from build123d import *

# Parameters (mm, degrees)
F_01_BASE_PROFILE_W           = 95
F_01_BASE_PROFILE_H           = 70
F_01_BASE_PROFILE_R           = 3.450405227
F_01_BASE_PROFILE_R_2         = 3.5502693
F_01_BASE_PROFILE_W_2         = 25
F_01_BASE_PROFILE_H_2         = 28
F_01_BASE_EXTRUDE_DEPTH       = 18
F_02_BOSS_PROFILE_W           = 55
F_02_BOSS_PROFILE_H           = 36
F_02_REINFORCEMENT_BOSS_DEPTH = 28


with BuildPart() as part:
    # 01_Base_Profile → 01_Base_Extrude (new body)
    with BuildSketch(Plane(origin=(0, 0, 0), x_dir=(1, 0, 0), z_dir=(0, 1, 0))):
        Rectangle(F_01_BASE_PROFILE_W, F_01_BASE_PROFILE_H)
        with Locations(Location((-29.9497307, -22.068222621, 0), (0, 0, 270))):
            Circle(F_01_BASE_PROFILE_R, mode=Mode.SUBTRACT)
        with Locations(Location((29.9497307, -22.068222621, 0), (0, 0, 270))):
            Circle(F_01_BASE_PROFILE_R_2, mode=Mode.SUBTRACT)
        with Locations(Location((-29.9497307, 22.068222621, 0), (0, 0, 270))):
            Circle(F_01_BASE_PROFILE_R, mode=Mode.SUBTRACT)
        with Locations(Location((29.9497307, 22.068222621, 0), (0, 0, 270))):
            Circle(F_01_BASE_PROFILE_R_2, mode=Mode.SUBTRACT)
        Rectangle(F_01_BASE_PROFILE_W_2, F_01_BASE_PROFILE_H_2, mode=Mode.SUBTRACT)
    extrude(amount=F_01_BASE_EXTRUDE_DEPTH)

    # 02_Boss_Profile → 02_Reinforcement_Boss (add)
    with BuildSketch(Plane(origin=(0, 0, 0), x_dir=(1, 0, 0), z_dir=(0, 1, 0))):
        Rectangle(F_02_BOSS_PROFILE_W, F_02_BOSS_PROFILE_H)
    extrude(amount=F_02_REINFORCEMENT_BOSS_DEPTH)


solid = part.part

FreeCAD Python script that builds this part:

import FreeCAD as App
import Part
import Sketcher


def add_polygon(sketch, points):
    """Adds a closed chain of lines whose ends are joined by coincident constraints."""
    first, n = sketch.GeometryCount, len(points)
    for a, b in zip(points, points[1:] + points[:1]):
        sketch.addGeometry(Part.LineSegment(App.Vector(*a, 0), App.Vector(*b, 0)), False)
    for i in range(n):
        sketch.addConstraint(Sketcher.Constraint("Coincident", first + i, 2, first + (i + 1) % n, 1))

doc = App.newDocument("Part")
body = doc.addObject("PartDesign::Body", "Body")

sketch1 = body.newObject("Sketcher::SketchObject", "Sketch")
sketch1.AttachmentSupport = (doc.getObject("XZ_Plane"), [""])
sketch1.MapMode = "FlatFace"
add_polygon(sketch1, [(-47.5, -35), (-47.5, 35), (47.5, 35), (47.5, -35)])
sketch1.addGeometry(Part.Circle(App.Vector(-29.9, 22.1, 0), App.Vector(0, 0, 1), 3.5), False)
sketch1.addGeometry(Part.Circle(App.Vector(29.9, 22.1, 0), App.Vector(0, 0, 1), 3.6), False)
add_polygon(sketch1, [(12.5, 14), (-12.5, 14), (-12.5, -14), (12.5, -14)])
sketch1.addGeometry(Part.Circle(App.Vector(-29.9, -22.1, 0), App.Vector(0, 0, 1), 3.5), False)
sketch1.addGeometry(Part.Circle(App.Vector(29.9, -22.1, 0), App.Vector(0, 0, 1), 3.6), False)
sketch1.addConstraint(Sketcher.Constraint("Vertical", 0))
sketch1.addConstraint(Sketcher.Constraint("Horizontal", 1))
sketch1.addConstraint(Sketcher.Constraint("Vertical", 2))
sketch1.addConstraint(Sketcher.Constraint("Horizontal", 3))
sketch1.addConstraint(Sketcher.Constraint("Horizontal", 6))
sketch1.addConstraint(Sketcher.Constraint("Vertical", 7))
sketch1.addConstraint(Sketcher.Constraint("Horizontal", 8))
sketch1.addConstraint(Sketcher.Constraint("Vertical", 9))
sketch1.addConstraint(Sketcher.Constraint("Equal", 4, 10))
sketch1.addConstraint(Sketcher.Constraint("Equal", 5, 11))
sketch1.addConstraint(Sketcher.Constraint("Symmetric", 5, 3, 10, 3, -1, 1))
sketch1.addConstraint(Sketcher.Constraint("Symmetric", 4, 3, 11, 3, -1, 1))
sketch1.addConstraint(Sketcher.Constraint("Symmetric", 0, 2, 2, 2, -1, 1))
sketch1.addConstraint(Sketcher.Constraint("Symmetric", 6, 2, 8, 2, -1, 1))
sketch1.addConstraint(Sketcher.Constraint("Symmetric", 4, 3, 5, 3, -2))
sketch1.addConstraint(Sketcher.Constraint("DistanceX", 1, 1, 1, 2, 95.0))
sketch1.addConstraint(Sketcher.Constraint("DistanceX", 6, 2, 6, 1, 25.0))
sketch1.addConstraint(Sketcher.Constraint("DistanceY", 0, 1, 0, 2, 70.0))
sketch1.addConstraint(Sketcher.Constraint("DistanceY", 7, 2, 7, 1, 28.0))
sketch1.addConstraint(Sketcher.Constraint("Diameter", 4, 6.90081))
sketch1.addConstraint(Sketcher.Constraint("Diameter", 5, 7.100539))
sketch1.addConstraint(Sketcher.Constraint("DistanceX", 4, 3, -1, 1, 29.949731))
sketch1.addConstraint(Sketcher.Constraint("DistanceY", -1, 1, 4, 3, 22.068223))
pad1 = body.newObject("PartDesign::Pad", "Pad")
pad1.Profile = sketch1
pad1.Length = 18
pad1.Reversed = True

sketch2 = body.newObject("Sketcher::SketchObject", "Sketch001")
sketch2.AttachmentSupport = (doc.getObject("XZ_Plane"), [""])
sketch2.MapMode = "FlatFace"
add_polygon(sketch2, [(-28, -18), (-28, 18), (28, 18), (28, -18)])
sketch2.addConstraint(Sketcher.Constraint("Vertical", 0))
sketch2.addConstraint(Sketcher.Constraint("Horizontal", 1))
sketch2.addConstraint(Sketcher.Constraint("Vertical", 2))
sketch2.addConstraint(Sketcher.Constraint("Horizontal", 3))
sketch2.addConstraint(Sketcher.Constraint("Symmetric", 0, 2, 2, 2, -1, 1))
sketch2.addConstraint(Sketcher.Constraint("DistanceX", 1, 1, 1, 2, 55.0))
sketch2.addConstraint(Sketcher.Constraint("DistanceY", 0, 1, 0, 2, 36.0))
pad2 = body.newObject("PartDesign::Pad", "Pad001")
pad2.Profile = sketch2
pad2.Length = 28
pad2.Reversed = True

doc.recompute()
